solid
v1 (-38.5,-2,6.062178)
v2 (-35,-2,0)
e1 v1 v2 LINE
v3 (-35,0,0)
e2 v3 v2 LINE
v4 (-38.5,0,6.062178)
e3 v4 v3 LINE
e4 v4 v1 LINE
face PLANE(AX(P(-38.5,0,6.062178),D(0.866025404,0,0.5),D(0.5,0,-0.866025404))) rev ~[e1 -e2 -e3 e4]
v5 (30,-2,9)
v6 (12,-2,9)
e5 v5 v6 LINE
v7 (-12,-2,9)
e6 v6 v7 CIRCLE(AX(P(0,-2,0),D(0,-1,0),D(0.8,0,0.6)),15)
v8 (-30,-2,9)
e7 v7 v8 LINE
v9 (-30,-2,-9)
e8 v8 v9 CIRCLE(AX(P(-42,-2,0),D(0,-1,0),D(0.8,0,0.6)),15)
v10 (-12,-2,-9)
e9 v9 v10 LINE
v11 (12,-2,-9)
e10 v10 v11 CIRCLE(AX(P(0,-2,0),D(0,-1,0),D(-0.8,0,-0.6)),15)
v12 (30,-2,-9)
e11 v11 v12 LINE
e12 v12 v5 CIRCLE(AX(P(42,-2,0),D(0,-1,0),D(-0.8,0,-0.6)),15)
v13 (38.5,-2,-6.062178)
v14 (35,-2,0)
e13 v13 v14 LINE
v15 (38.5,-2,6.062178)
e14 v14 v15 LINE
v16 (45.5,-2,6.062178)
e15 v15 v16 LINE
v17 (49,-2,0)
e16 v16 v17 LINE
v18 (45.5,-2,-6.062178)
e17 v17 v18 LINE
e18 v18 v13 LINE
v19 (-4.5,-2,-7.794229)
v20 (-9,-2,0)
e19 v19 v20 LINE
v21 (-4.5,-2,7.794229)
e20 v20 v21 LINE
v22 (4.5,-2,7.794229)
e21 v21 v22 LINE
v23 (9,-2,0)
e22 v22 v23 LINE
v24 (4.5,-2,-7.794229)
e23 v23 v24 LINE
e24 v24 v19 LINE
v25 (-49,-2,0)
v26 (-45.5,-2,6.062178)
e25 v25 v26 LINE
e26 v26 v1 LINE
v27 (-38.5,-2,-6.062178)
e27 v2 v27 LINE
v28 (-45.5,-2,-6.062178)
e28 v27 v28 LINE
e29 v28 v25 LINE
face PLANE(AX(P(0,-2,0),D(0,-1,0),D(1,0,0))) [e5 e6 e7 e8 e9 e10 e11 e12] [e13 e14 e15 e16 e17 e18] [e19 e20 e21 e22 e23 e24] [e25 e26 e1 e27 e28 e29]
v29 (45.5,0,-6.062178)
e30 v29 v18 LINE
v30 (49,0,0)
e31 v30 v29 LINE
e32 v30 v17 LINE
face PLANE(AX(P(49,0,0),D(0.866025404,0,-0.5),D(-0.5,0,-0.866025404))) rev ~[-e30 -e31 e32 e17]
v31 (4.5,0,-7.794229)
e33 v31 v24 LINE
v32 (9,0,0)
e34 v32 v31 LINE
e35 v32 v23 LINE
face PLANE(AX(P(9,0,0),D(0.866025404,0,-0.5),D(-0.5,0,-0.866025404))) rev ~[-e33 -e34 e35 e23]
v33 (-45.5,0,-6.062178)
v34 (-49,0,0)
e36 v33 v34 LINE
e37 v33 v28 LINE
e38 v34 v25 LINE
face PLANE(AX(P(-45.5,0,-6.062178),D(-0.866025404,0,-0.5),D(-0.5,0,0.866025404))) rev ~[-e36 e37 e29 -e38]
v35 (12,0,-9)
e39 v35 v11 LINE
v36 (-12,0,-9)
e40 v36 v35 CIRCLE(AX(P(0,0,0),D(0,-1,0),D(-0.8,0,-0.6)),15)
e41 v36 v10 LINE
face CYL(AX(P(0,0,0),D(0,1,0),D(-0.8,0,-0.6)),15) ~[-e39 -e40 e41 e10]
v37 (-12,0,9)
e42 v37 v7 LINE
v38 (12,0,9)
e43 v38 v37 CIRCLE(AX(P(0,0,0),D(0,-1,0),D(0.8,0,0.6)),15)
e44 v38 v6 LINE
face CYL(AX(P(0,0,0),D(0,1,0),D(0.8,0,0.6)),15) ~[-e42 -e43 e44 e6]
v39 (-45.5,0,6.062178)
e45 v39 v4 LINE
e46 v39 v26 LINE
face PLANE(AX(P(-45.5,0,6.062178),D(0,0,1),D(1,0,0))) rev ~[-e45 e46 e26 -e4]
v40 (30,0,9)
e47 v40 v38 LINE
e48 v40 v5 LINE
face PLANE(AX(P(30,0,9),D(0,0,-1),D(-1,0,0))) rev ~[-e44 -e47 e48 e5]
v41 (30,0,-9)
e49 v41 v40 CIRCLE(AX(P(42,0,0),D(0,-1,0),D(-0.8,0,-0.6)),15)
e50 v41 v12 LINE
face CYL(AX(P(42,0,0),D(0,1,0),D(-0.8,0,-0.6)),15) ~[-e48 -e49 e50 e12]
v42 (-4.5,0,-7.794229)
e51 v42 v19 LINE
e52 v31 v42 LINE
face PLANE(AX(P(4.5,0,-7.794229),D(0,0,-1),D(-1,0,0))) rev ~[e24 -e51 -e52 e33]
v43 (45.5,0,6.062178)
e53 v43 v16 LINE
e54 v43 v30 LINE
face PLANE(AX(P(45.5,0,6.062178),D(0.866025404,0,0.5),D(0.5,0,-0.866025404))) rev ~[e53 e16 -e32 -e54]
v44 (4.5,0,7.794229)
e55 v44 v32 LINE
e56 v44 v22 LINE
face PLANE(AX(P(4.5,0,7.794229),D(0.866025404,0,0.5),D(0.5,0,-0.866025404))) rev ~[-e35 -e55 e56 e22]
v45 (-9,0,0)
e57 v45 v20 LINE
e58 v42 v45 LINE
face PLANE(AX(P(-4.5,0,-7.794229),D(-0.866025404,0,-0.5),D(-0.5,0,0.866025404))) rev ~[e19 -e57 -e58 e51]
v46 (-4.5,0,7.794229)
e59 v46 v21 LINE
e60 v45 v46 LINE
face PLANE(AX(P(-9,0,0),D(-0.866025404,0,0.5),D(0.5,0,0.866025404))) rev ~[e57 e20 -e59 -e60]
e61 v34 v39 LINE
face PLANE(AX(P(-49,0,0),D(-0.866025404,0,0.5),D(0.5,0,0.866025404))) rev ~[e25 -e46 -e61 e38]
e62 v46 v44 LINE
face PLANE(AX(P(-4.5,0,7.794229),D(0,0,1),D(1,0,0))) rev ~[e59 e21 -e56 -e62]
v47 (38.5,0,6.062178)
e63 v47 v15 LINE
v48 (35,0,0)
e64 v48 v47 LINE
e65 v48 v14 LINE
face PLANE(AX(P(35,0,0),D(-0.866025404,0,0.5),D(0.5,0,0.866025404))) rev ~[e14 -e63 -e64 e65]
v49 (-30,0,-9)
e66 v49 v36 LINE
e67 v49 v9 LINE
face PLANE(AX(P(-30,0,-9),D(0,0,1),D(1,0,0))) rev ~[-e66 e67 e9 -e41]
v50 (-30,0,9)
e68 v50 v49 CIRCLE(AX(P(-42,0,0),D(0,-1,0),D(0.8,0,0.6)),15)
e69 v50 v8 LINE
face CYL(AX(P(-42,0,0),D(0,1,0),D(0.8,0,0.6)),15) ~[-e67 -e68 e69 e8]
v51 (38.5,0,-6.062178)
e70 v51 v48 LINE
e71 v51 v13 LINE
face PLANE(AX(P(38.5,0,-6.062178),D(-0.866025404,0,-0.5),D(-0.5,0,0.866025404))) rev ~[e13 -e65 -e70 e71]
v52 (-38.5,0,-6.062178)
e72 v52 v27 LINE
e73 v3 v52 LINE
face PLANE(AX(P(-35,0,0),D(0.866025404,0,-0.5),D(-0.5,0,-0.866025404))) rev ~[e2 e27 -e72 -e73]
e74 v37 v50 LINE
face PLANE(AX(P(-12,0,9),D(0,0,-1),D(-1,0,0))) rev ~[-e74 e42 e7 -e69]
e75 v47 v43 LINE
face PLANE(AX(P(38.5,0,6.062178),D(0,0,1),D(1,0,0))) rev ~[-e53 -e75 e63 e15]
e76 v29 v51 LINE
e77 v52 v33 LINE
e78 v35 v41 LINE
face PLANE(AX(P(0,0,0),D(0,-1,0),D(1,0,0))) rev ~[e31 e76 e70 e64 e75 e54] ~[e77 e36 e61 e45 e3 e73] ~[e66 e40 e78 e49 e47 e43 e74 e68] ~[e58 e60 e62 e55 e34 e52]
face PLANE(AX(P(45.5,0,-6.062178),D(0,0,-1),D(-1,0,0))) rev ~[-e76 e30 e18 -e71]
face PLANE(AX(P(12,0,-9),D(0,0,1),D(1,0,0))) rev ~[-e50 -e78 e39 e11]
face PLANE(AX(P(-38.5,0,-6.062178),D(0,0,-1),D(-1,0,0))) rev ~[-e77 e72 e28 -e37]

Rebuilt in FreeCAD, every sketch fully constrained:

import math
import FreeCAD as App
import Part
import Sketcher

V = App.Vector
Q = App.Units.Quantity

doc = App.newDocument("Part")
body = doc.addObject("PartDesign::Body", "Body")

# Sketch on XZ plane
sketch1 = body.newObject("Sketcher::SketchObject", "Sketch")
sketch1.AttachmentSupport = (doc.getObject("XZ_Plane"), [""])
sketch1.MapMode = "FlatFace"
sketch1.addGeometry([
    Part.ArcOfCircle(Part.Circle(V(42, 0, 0), V(0, 0, 1), 15), math.radians(-143), math.radians(143)),  # 0
    Part.LineSegment(V(30, 9, 0), V(12, 9, 0)),  # 1
    Part.ArcOfCircle(Part.Circle(V(0, 0, 0), V(0, 0, 1), 15), math.radians(37), math.radians(143)),  # 2
    Part.LineSegment(V(-12, 9, 0), V(-30, 9, 0)),  # 3
    Part.ArcOfCircle(Part.Circle(V(-42, 0, 0), V(0, 0, 1), 15), math.radians(37), math.radians(323)),  # 4
    Part.LineSegment(V(-30, -9, 0), V(-12, -9, 0)),  # 5
    Part.ArcOfCircle(Part.Circle(V(0, 0, 0), V(0, 0, 1), 15), math.radians(-143), math.radians(-37)),  # 6
    Part.LineSegment(V(12, -9, 0), V(30, -9, 0)),  # 7
    Part.LineSegment(V(-49, 0, 0), V(-46, 6, 0)),  # 8
    Part.LineSegment(V(-46, 6, 0), V(-38, 6, 0)),  # 9
    Part.LineSegment(V(-38, 6, 0), V(-35, 0, 0)),  # 10
    Part.LineSegment(V(-35, 0, 0), V(-38, -6, 0)),  # 11
    Part.LineSegment(V(-38, -6, 0), V(-46, -6, 0)),  # 12
    Part.LineSegment(V(-46, -6, 0), V(-49, 0, 0)),  # 13
    Part.LineSegment(V(-9, 0, 0), V(-4, 8, 0)),  # 14
    Part.LineSegment(V(-4, 8, 0), V(4, 8, 0)),  # 15
    Part.LineSegment(V(4, 8, 0), V(9, 0, 0)),  # 16
    Part.LineSegment(V(9, 0, 0), V(4, -8, 0)),  # 17
    Part.LineSegment(V(4, -8, 0), V(-4, -8, 0)),  # 18
    Part.LineSegment(V(-4, -8, 0), V(-9, 0, 0)),  # 19
    Part.LineSegment(V(35, 0, 0), V(38, 6, 0)),  # 20
    Part.LineSegment(V(38, 6, 0), V(46, 6, 0)),  # 21
    Part.LineSegment(V(46, 6, 0), V(49, 0, 0)),  # 22
    Part.LineSegment(V(49, 0, 0), V(46, -6, 0)),  # 23
    Part.LineSegment(V(46, -6, 0), V(38, -6, 0)),  # 24
    Part.LineSegment(V(38, -6, 0), V(35, 0, 0)),  # 25
], False)
sketch1.addConstraint([
    Sketcher.Constraint("Coincident", 0, 2, 1, 1),
    Sketcher.Constraint("Coincident", 1, 2, 2, 1),
    Sketcher.Constraint("Coincident", 2, 2, 3, 1),
    Sketcher.Constraint("Coincident", 3, 2, 4, 1),
    Sketcher.Constraint("Coincident", 4, 2, 5, 1),
    Sketcher.Constraint("Coincident", 5, 2, 6, 1),
    Sketcher.Constraint("Coincident", 6, 2, 7, 1),
    Sketcher.Constraint("Coincident", 7, 2, 0, 1),
    Sketcher.Constraint("Coincident", 8, 2, 9, 1),
    Sketcher.Constraint("Coincident", 9, 2, 10, 1),
    Sketcher.Constraint("Coincident", 10, 2, 11, 1),
    Sketcher.Constraint("Coincident", 11, 2, 12, 1),
    Sketcher.Constraint("Coincident", 12, 2, 13, 1),
    Sketcher.Constraint("Coincident", 13, 2, 8, 1),
    Sketcher.Constraint("Coincident", 14, 2, 15, 1),
    Sketcher.Constraint("Coincident", 15, 2, 16, 1),
    Sketcher.Constraint("Coincident", 16, 2, 17, 1),
    Sketcher.Constraint("Coincident", 17, 2, 18, 1),
    Sketcher.Constraint("Coincident", 18, 2, 19, 1),
    Sketcher.Constraint("Coincident", 19, 2, 14, 1),
    Sketcher.Constraint("Coincident", 20, 2, 21, 1),
    Sketcher.Constraint("Coincident", 21, 2, 22, 1),
    Sketcher.Constraint("Coincident", 22, 2, 23, 1),
    Sketcher.Constraint("Coincident", 23, 2, 24, 1),
    Sketcher.Constraint("Coincident", 24, 2, 25, 1),
    Sketcher.Constraint("Coincident", 25, 2, 20, 1),
    Sketcher.Constraint("Horizontal", 1),
    Sketcher.Constraint("Horizontal", 3),
    Sketcher.Constraint("Horizontal", 5),
    Sketcher.Constraint("Horizontal", 7),
    Sketcher.Constraint("Horizontal", 9),
    Sketcher.Constraint("Horizontal", 12),
    Sketcher.Constraint("Horizontal", 15),
    Sketcher.Constraint("Horizontal", 18),
    Sketcher.Constraint("Horizontal", 21),
    Sketcher.Constraint("Horizontal", 24),
    Sketcher.Constraint("Coincident", 2, 3, -1, 1),
    Sketcher.Constraint("Coincident", 6, 3, -1, 1),
    Sketcher.Constraint("Equal", 0, 2),
    Sketcher.Constraint("Equal", 2, 4),
    Sketcher.Constraint("Equal", 4, 6),
    Sketcher.Constraint("Symmetric", 0, 3, 4, 3, -1, 1),
    Sketcher.Constraint("Symmetric", 14, 2, 17, 2, -1, 1),
    Sketcher.Constraint("Symmetric", 16, 2, 19, 2, -1, 1),
    Sketcher.Constraint("Symmetric", 11, 2, 20, 2, -1, 1),
    Sketcher.Constraint("Symmetric", 13, 2, 22, 2, -1, 1),
    Sketcher.Constraint("Symmetric", 8, 2, 23, 2, -1, 1),
    Sketcher.Constraint("Symmetric", 10, 2, 25, 2, -1, 1),
    Sketcher.Constraint("Symmetric", 0, 2, 3, 2, -2),
    Sketcher.Constraint("Symmetric", 9, 2, 20, 2, -2),
    Sketcher.Constraint("PointOnObject", 10, 2, -1),
    Sketcher.Constraint("PointOnObject", 13, 2, -1),
    Sketcher.Constraint("PointOnObject", 16, 2, -1),
    Sketcher.Constraint("Parallel", 8, 11),
    Sketcher.Constraint("Parallel", 10, 13),
    Sketcher.Constraint("Parallel", 11, 14),
    Sketcher.Constraint("Parallel", 13, 16),
    Sketcher.Constraint("Parallel", 16, 19),
    Sketcher.Constraint("Parallel", 19, 22),
    Sketcher.Constraint("Parallel", 22, 25),
    Sketcher.Constraint("Horizontal", 5, 2, 6, 2),
    Sketcher.Constraint("Vertical", 3, 2, 4, 2),
    Sketcher.Constraint("Radius", 0, 15.0),
    Sketcher.Constraint("DistanceX", 1, 2, 1, 1, 18.0),
    Sketcher.Constraint("DistanceX", 9, 1, 9, 2, 7.0),
    Sketcher.Constraint("DistanceX", 15, 1, 15, 2, 9.0),
    Sketcher.Constraint("Angle", 8, Q("60 deg")),
    Sketcher.Constraint("Distance", 8, 7.0),
    Sketcher.Constraint("Distance", 14, 9.0),
    Sketcher.Constraint("DistanceX", -1, 1, 0, 3, 42.0),
    Sketcher.Constraint("DistanceX", 10, 2, -1, 1, 35.0),
])
pad1 = body.newObject("PartDesign::Pad", "Pad")
pad1.Profile = sketch1
pad1.Length = 2

doc.recompute()
